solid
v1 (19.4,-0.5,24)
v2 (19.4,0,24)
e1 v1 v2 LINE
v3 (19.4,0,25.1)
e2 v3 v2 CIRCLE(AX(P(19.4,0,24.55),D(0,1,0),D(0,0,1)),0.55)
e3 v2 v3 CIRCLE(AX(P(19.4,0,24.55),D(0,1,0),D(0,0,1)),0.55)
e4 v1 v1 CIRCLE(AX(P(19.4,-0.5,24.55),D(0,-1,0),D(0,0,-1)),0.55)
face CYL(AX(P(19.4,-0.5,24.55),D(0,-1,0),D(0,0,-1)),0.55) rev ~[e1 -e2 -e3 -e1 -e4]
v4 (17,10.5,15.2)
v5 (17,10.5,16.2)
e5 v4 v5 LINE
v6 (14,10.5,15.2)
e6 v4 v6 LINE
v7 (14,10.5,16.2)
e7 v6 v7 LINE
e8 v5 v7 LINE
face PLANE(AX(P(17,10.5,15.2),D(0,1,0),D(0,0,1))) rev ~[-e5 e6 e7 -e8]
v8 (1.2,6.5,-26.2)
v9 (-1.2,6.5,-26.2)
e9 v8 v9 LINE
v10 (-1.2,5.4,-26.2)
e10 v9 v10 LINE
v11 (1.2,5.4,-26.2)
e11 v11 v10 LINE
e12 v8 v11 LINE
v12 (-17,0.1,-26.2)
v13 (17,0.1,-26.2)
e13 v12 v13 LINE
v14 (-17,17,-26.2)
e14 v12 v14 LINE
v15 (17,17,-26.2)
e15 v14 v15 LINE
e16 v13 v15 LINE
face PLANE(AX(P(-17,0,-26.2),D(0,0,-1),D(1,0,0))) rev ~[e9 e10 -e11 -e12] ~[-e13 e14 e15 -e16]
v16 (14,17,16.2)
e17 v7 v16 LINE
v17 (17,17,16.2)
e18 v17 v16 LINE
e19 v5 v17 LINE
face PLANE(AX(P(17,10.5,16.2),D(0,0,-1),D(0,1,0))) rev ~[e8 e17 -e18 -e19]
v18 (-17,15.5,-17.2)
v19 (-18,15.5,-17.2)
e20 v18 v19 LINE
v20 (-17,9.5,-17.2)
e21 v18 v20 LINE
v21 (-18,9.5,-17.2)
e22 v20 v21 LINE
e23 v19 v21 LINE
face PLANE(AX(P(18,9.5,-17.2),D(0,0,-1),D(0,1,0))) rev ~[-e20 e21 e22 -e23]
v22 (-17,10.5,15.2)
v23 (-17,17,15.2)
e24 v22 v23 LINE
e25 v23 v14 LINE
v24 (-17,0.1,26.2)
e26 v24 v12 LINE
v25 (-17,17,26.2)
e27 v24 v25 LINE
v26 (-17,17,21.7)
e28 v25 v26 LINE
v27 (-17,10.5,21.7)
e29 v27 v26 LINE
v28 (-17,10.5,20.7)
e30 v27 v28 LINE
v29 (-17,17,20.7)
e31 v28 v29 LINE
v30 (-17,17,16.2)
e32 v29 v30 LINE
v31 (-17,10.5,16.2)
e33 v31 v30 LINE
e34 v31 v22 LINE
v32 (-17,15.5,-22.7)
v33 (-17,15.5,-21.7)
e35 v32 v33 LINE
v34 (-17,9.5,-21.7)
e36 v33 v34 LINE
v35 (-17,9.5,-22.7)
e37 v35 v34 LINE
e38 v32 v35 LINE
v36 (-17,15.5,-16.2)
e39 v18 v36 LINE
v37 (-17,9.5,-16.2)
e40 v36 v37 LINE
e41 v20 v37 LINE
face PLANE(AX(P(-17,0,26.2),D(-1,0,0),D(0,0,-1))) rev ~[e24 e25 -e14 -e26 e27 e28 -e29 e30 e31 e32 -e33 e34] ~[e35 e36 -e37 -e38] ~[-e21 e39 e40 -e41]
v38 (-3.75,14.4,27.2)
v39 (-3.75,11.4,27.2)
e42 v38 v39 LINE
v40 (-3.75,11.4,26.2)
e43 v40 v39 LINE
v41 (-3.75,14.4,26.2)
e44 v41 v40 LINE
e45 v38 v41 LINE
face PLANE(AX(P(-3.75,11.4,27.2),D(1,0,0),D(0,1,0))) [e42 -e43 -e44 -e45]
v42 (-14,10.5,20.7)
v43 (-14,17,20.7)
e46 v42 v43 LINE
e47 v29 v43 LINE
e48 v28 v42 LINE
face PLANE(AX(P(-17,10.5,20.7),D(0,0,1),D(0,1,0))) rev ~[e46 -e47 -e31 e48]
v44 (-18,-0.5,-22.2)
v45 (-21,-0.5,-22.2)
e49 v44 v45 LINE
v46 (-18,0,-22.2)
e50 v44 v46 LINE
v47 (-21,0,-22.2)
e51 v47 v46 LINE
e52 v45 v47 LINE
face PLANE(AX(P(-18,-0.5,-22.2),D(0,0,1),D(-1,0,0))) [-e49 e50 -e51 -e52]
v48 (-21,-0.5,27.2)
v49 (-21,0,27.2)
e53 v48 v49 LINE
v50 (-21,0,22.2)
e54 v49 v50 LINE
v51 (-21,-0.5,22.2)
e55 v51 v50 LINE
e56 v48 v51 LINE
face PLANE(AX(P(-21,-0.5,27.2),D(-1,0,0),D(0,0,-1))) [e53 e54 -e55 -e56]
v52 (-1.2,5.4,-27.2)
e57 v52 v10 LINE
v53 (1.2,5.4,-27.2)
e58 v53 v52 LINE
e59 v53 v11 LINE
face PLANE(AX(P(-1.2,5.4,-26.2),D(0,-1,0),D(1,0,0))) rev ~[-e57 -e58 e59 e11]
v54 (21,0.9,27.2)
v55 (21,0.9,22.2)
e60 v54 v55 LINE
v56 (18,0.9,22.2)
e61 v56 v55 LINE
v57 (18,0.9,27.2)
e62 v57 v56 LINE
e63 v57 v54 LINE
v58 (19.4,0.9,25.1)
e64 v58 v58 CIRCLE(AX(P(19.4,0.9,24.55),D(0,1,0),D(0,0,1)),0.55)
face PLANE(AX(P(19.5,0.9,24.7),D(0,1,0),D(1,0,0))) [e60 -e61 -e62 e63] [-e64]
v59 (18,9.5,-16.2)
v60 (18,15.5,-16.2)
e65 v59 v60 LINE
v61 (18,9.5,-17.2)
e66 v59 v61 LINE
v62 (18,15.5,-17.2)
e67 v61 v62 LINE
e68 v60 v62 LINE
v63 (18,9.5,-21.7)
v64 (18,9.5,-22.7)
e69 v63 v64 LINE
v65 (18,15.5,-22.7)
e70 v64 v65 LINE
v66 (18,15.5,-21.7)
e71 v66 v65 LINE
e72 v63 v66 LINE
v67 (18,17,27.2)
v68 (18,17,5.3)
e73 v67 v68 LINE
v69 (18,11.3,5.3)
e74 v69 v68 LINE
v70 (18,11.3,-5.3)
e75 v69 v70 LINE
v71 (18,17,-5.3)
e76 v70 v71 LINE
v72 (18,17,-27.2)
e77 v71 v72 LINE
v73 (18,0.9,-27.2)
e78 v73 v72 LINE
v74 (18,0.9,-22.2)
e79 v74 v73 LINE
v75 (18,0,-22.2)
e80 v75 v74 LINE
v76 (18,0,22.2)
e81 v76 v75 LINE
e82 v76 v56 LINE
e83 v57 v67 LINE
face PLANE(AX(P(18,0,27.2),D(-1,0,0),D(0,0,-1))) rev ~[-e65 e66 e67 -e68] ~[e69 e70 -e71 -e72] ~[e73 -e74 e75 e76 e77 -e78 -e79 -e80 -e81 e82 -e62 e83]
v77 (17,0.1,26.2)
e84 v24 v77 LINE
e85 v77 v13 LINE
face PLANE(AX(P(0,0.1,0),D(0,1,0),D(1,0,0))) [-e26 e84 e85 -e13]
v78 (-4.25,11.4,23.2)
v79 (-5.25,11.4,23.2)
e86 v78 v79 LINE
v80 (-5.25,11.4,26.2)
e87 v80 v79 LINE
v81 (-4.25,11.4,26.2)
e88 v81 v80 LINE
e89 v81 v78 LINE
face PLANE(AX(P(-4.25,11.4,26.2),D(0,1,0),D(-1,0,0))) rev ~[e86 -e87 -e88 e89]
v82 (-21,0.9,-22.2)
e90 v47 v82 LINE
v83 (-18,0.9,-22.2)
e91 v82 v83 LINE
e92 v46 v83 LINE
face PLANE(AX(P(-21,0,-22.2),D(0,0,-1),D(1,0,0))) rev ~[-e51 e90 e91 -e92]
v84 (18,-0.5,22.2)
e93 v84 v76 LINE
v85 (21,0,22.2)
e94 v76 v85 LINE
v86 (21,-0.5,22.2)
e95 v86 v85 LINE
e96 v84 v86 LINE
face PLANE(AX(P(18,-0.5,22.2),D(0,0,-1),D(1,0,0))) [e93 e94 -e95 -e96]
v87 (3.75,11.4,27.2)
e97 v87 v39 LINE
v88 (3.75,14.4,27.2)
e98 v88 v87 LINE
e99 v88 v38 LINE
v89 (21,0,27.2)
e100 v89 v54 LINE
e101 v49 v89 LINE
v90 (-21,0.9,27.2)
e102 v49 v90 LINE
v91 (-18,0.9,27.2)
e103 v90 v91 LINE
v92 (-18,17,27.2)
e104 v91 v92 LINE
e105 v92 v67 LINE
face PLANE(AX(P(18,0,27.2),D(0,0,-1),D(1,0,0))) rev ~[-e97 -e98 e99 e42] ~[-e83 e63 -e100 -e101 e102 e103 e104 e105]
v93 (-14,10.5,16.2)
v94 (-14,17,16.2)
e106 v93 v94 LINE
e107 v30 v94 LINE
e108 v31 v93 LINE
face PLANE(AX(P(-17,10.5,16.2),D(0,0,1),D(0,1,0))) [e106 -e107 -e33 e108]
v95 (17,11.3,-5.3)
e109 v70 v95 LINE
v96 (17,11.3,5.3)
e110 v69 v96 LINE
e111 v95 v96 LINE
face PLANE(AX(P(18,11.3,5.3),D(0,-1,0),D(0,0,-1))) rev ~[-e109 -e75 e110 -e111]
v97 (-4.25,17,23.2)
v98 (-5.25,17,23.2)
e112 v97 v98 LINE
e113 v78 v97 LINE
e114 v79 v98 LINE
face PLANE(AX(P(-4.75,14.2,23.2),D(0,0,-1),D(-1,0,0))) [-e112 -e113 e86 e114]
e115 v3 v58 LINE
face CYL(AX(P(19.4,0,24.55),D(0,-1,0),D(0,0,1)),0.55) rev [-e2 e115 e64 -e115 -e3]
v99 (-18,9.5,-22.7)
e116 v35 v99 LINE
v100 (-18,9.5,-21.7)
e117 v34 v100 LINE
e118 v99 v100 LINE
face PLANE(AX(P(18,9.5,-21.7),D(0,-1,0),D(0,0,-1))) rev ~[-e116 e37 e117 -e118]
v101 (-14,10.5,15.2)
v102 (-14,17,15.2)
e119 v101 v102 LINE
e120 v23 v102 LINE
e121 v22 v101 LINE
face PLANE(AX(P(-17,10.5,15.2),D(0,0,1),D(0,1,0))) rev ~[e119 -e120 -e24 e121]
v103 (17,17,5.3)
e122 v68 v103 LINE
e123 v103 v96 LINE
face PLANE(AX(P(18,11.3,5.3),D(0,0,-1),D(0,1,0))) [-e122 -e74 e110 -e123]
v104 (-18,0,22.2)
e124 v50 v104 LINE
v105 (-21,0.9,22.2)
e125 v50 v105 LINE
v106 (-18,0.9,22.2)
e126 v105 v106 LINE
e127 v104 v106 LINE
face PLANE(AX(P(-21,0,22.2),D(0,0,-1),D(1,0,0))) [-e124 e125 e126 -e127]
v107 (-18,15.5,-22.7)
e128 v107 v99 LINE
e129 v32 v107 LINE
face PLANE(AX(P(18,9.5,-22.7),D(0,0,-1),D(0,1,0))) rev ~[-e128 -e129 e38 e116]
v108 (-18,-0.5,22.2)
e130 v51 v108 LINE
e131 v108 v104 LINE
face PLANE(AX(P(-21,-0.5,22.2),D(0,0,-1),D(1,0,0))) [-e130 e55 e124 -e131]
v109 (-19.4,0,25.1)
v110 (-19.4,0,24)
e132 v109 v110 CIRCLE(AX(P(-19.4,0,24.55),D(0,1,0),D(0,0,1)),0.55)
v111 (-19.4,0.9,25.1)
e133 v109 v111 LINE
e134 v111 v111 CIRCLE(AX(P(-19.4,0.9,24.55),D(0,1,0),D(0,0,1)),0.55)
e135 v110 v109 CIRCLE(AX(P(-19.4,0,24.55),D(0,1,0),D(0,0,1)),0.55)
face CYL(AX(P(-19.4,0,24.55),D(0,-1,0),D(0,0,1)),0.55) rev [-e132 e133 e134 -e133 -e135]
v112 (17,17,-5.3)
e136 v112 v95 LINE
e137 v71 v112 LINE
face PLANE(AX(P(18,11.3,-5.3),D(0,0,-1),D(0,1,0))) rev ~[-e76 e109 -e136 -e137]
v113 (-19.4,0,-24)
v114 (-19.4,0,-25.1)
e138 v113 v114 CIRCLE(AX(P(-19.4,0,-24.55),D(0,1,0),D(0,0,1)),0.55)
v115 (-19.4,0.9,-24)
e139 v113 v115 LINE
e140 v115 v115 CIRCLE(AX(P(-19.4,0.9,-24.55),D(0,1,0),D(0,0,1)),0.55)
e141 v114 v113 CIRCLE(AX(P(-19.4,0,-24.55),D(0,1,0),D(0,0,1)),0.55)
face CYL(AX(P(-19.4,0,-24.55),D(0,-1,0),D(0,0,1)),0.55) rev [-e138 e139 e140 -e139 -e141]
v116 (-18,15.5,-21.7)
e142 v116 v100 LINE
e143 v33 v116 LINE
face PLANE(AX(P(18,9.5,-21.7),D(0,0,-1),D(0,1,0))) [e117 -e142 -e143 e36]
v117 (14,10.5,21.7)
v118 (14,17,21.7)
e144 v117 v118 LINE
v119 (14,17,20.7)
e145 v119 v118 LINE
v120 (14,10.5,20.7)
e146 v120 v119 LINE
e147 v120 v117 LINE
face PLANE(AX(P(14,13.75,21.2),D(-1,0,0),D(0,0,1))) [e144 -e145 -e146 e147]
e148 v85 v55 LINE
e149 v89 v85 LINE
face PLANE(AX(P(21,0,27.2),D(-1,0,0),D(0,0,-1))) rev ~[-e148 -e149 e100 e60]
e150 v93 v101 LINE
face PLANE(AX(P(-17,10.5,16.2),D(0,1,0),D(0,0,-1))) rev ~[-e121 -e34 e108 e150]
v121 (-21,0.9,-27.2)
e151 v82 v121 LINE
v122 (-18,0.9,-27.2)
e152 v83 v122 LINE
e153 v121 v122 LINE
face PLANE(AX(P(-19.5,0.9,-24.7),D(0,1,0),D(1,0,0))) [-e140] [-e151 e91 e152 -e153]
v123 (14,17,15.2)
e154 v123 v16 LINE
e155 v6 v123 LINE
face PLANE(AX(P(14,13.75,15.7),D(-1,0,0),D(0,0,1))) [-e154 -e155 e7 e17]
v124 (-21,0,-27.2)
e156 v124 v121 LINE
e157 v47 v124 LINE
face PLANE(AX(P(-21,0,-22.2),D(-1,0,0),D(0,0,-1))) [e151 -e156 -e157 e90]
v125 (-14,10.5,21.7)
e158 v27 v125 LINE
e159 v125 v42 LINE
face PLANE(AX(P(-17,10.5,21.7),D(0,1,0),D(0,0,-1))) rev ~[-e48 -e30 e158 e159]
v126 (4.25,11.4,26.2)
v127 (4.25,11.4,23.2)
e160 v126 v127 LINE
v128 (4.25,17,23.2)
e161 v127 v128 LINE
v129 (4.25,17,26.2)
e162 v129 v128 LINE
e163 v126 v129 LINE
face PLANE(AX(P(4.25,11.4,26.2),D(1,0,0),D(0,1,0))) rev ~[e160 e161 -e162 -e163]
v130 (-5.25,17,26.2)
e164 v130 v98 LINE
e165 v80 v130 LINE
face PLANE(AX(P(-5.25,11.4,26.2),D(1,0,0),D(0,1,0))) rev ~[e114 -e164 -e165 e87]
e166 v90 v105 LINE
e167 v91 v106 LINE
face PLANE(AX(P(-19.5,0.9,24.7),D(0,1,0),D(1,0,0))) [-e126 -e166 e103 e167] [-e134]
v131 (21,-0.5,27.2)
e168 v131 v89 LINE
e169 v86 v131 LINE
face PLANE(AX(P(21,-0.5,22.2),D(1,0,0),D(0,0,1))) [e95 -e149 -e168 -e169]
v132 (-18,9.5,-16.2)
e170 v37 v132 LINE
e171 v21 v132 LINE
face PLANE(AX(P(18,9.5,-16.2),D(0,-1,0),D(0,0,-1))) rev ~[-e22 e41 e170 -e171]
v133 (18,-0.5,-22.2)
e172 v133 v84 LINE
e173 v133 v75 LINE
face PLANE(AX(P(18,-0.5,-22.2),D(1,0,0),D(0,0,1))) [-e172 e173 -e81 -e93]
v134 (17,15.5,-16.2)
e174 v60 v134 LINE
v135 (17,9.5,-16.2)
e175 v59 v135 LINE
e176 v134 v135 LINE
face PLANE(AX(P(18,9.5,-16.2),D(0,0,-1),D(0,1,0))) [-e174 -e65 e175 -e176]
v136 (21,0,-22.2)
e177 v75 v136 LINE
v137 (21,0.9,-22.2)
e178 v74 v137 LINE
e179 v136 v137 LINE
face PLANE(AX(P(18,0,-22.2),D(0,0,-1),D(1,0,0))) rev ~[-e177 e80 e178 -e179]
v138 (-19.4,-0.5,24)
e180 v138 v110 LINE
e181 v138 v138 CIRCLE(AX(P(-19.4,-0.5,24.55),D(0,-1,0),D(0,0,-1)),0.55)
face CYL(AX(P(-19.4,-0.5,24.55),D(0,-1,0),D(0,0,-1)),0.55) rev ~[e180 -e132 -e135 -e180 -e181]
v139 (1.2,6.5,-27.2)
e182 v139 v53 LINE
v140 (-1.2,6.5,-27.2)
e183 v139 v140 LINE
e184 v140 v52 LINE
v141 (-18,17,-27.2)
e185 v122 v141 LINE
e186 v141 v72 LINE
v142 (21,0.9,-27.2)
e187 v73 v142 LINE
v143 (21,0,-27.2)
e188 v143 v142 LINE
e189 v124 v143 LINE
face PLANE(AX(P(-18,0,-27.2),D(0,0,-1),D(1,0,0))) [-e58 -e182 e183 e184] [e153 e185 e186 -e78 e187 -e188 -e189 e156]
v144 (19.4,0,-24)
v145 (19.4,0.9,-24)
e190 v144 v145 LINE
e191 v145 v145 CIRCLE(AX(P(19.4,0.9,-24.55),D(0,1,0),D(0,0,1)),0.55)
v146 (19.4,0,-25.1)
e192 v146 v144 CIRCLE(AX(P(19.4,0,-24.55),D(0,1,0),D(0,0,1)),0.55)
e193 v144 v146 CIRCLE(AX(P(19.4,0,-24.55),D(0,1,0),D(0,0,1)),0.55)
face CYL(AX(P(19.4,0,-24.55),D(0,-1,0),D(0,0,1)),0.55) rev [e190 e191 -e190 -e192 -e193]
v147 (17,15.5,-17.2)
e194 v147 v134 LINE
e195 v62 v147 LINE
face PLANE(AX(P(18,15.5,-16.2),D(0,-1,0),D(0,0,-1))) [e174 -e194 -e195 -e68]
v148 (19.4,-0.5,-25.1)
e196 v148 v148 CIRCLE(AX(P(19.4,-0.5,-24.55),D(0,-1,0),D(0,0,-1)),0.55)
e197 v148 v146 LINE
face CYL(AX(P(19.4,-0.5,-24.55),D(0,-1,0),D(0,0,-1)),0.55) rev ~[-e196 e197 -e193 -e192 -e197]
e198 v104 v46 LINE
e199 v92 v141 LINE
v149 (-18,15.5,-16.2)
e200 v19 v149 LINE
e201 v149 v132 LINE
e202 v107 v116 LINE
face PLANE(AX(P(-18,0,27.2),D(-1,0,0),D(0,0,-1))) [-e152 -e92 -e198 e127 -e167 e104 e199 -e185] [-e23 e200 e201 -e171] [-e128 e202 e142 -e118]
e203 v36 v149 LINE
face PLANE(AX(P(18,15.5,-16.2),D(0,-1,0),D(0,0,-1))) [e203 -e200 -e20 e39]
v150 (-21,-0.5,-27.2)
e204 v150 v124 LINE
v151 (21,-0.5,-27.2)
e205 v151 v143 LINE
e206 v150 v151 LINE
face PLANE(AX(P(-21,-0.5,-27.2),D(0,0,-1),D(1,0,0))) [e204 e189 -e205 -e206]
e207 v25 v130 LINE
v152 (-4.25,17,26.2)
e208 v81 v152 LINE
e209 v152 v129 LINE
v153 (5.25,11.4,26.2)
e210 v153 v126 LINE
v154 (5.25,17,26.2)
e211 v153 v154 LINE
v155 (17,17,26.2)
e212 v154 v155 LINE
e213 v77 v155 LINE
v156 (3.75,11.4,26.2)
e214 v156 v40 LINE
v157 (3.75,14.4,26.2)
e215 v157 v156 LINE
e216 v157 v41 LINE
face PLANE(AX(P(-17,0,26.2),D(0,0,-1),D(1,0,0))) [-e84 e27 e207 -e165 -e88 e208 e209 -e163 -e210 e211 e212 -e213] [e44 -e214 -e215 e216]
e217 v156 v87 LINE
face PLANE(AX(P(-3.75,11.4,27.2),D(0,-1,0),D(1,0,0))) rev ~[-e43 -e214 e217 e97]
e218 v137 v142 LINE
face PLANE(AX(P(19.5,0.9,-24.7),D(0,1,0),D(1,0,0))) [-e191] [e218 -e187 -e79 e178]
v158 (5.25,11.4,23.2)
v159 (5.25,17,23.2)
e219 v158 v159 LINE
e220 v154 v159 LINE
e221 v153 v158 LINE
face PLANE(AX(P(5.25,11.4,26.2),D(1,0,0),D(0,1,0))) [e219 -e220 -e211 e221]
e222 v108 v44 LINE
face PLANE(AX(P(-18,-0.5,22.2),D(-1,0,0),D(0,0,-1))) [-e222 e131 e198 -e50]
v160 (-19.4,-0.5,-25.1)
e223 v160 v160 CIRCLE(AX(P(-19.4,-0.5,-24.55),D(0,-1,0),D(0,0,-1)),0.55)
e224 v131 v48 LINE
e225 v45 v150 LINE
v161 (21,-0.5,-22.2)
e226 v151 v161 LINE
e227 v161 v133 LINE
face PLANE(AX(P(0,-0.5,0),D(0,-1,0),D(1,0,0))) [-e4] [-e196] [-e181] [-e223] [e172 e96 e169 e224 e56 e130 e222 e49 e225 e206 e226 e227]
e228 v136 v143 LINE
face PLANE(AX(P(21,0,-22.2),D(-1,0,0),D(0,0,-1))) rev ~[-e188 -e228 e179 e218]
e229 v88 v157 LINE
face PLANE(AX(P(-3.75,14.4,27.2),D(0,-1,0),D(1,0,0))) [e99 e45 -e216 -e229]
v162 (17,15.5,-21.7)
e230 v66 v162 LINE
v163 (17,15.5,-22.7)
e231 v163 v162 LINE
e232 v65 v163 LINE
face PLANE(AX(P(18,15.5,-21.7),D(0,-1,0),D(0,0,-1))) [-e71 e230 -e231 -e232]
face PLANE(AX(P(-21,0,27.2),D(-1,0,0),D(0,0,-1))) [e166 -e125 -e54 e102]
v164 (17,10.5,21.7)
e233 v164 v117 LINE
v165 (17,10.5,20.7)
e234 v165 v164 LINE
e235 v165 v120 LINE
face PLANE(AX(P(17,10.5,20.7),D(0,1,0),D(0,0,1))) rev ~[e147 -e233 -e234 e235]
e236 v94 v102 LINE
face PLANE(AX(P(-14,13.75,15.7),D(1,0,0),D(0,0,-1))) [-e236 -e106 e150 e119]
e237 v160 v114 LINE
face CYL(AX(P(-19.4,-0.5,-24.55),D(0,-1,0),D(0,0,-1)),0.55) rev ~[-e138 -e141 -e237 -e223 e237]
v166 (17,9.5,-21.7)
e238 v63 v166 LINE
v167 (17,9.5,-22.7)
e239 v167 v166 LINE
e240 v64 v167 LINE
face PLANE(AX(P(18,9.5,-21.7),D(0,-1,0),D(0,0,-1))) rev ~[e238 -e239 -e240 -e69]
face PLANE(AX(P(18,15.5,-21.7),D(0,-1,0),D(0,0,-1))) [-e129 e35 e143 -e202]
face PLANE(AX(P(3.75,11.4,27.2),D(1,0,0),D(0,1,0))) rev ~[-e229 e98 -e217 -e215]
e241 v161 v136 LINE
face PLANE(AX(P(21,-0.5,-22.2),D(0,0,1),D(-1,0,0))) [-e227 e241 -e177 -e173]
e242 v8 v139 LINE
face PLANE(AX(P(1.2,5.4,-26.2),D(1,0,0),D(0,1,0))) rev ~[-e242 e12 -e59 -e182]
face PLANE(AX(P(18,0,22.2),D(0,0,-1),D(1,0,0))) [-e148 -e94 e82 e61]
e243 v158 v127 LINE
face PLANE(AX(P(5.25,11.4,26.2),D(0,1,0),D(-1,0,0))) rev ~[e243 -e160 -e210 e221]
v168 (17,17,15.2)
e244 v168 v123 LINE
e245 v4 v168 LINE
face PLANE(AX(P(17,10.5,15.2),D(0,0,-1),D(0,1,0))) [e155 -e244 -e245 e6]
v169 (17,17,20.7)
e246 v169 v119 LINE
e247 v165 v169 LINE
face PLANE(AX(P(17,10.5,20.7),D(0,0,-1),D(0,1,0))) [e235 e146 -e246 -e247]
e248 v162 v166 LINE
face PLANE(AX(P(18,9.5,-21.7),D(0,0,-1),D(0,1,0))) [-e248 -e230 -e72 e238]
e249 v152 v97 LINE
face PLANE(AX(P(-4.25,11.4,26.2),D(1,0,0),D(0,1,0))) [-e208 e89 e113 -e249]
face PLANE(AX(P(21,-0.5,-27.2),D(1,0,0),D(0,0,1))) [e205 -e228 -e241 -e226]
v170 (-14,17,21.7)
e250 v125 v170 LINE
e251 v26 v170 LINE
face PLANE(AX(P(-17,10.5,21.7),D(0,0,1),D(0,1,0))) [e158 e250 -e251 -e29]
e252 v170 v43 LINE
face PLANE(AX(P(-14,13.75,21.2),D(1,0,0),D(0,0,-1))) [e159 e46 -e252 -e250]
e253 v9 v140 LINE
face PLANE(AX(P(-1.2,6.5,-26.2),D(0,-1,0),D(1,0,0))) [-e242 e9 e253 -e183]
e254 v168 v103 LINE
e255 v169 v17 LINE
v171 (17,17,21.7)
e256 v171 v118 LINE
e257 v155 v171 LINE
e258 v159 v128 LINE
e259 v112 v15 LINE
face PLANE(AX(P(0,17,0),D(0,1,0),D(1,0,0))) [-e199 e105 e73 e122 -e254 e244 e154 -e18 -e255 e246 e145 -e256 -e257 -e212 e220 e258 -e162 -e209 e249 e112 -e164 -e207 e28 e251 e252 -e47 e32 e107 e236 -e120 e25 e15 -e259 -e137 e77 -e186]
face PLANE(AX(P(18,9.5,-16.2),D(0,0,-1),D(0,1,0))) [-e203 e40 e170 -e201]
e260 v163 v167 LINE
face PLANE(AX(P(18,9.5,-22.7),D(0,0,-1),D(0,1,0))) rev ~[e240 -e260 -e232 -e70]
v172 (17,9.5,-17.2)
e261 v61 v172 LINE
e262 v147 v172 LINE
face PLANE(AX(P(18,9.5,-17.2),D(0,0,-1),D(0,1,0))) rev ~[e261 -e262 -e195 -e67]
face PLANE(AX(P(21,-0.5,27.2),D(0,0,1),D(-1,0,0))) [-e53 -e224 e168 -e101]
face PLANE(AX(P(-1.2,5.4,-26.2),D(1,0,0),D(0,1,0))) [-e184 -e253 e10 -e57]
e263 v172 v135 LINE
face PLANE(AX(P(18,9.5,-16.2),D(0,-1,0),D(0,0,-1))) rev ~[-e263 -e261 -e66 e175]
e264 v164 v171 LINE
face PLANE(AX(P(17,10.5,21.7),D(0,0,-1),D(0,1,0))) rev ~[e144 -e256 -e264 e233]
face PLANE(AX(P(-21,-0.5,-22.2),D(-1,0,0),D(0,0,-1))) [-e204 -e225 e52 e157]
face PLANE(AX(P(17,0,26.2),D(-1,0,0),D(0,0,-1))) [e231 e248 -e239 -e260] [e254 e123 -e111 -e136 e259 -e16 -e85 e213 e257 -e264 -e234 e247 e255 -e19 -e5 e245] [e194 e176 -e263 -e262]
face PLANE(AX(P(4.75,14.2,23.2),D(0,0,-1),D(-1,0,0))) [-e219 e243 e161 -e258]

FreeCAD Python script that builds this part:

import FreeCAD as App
import Part
import Sketcher

doc = App.newDocument("Part")
body = doc.addObject("PartDesign::Body", "Body")

# Sketch on XZ plane
sketch1 = doc.addObject("Sketcher::SketchObject", "Sketch")
body.addObject(sketch1)
sketch1.AttachmentSupport = (doc.XZ_Plane, [""])
sketch1.MapMode = "FlatFace"
sketch1.addGeometry(Part.LineSegment(App.Vector(-18, -27, 0), App.Vector(-18, 27, 0)), False)
sketch1.addGeometry(Part.LineSegment(App.Vector(-18, 27, 0), App.Vector(18, 27, 0)), False)
sketch1.addGeometry(Part.LineSegment(App.Vector(18, 27, 0), App.Vector(18, -27, 0)), False)
sketch1.addGeometry(Part.LineSegment(App.Vector(18, -27, 0), App.Vector(-18, -27, 0)), False)
sketch1.addGeometry(Part.LineSegment(App.Vector(17, 26, 0), App.Vector(-17, 26, 0)), False)
sketch1.addGeometry(Part.LineSegment(App.Vector(-17, 26, 0), App.Vector(-17, -26, 0)), False)
sketch1.addGeometry(Part.LineSegment(App.Vector(-17, -26, 0), App.Vector(17, -26, 0)), False)
sketch1.addGeometry(Part.LineSegment(App.Vector(17, -26, 0), App.Vector(17, 26, 0)), False)
sketch1.addConstraint(Sketcher.Constraint("Coincident", 0, 2, 1, 1))
sketch1.addConstraint(Sketcher.Constraint("Coincident", 1, 2, 2, 1))
sketch1.addConstraint(Sketcher.Constraint("Coincident", 2, 2, 3, 1))
sketch1.addConstraint(Sketcher.Constraint("Coincident", 3, 2, 0, 1))
sketch1.addConstraint(Sketcher.Constraint("Coincident", 4, 2, 5, 1))
sketch1.addConstraint(Sketcher.Constraint("Coincident", 5, 2, 6, 1))
sketch1.addConstraint(Sketcher.Constraint("Coincident", 6, 2, 7, 1))
sketch1.addConstraint(Sketcher.Constraint("Coincident", 7, 2, 4, 1))
sketch1.addConstraint(Sketcher.Constraint("Vertical", 0))
sketch1.addConstraint(Sketcher.Constraint("Horizontal", 1))
sketch1.addConstraint(Sketcher.Constraint("Vertical", 2))
sketch1.addConstraint(Sketcher.Constraint("Horizontal", 3))
sketch1.addConstraint(Sketcher.Constraint("Horizontal", 4))
sketch1.addConstraint(Sketcher.Constraint("Vertical", 5))
sketch1.addConstraint(Sketcher.Constraint("Horizontal", 6))
sketch1.addConstraint(Sketcher.Constraint("Vertical", 7))
sketch1.addConstraint(Sketcher.Constraint("Symmetric", 0, 2, 2, 2, -1, 1))
sketch1.addConstraint(Sketcher.Constraint("Symmetric", 4, 2, 6, 2, -1, 1))
sketch1.addConstraint(Sketcher.Constraint("DistanceX", 1, 1, 1, 2, 36.0))
sketch1.addConstraint(Sketcher.Constraint("DistanceX", 4, 2, 4, 1, 34.0))
sketch1.addConstraint(Sketcher.Constraint("DistanceY", 0, 1, 0, 2, 54.4))
sketch1.addConstraint(Sketcher.Constraint("DistanceY", 5, 2, 5, 1, 52.4))
pad1 = doc.addObject("PartDesign::Pad", "Pad")
body.addObject(pad1)
pad1.Profile = sketch1
pad1.Length = 17
pad1.Reversed = True

# Sketch on XZ plane
sketch2 = doc.addObject("Sketcher::SketchObject", "Sketch001")
body.addObject(sketch2)
sketch2.AttachmentSupport = (doc.XZ_Plane, [""])
sketch2.MapMode = "FlatFace"
sketch2.addGeometry(Part.LineSegment(App.Vector(-17, -26, 0), App.Vector(-17, 26, 0)), False)
sketch2.addGeometry(Part.LineSegment(App.Vector(-17, 26, 0), App.Vector(17, 26, 0)), False)
sketch2.addGeometry(Part.LineSegment(App.Vector(17, 26, 0), App.Vector(17, -26, 0)), False)
sketch2.addGeometry(Part.LineSegment(App.Vector(17, -26, 0), App.Vector(-17, -26, 0)), False)
sketch2.addConstraint(Sketcher.Constraint("Coincident", 0, 2, 1, 1))
sketch2.addConstraint(Sketcher.Constraint("Coincident", 1, 2, 2, 1))
sketch2.addConstraint(Sketcher.Constraint("Coincident", 2, 2, 3, 1))
sketch2.addConstraint(Sketcher.Constraint("Coincident", 3, 2, 0, 1))
sketch2.addConstraint(Sketcher.Constraint("Vertical", 0))
sketch2.addConstraint(Sketcher.Constraint("Horizontal", 1))
sketch2.addConstraint(Sketcher.Constraint("Vertical", 2))
sketch2.addConstraint(Sketcher.Constraint("Horizontal", 3))
sketch2.addConstraint(Sketcher.Constraint("Symmetric", 0, 2, 2, 2, -1, 1))
sketch2.addConstraint(Sketcher.Constraint("DistanceX", 1, 1, 1, 2, 34.0))
sketch2.addConstraint(Sketcher.Constraint("DistanceY", 0, 1, 0, 2, 52.4))
pad2 = doc.addObject("PartDesign::Pad", "Pad001")
body.addObject(pad2)
pad2.Profile = sketch2
pad2.Length = 0.1
pad2.Reversed = True

# Sketch on XY plane
sketch3 = doc.addObject("Sketcher::SketchObject", "Sketch002")
body.addObject(sketch3)
sketch3.AttachmentSupport = (doc.XY_Plane, [""])
sketch3.MapMode = "FlatFace"
sketch3.AttachmentOffset = App.Placement(App.Vector(0, 0, 27.2), App.Rotation())
sketch3.addGeometry(Part.LineSegment(App.Vector(-3.8, 14.4, 0), App.Vector(-3.8, 11.4, 0)), False)
sketch3.addGeometry(Part.LineSegment(App.Vector(-3.8, 11.4, 0), App.Vector(3.8, 11.4, 0)), False)
sketch3.addGeometry(Part.LineSegment(App.Vector(3.8, 11.4, 0), App.Vector(3.8, 14.4, 0)), False)
sketch3.addGeometry(Part.LineSegment(App.Vector(3.8, 14.4, 0), App.Vector(-3.8, 14.4, 0)), False)
sketch3.addConstraint(Sketcher.Constraint("Coincident", 0, 2, 1, 1))
sketch3.addConstraint(Sketcher.Constraint("Coincident", 1, 2, 2, 1))
sketch3.addConstraint(Sketcher.Constraint("Coincident", 2, 2, 3, 1))
sketch3.addConstraint(Sketcher.Constraint("Coincident", 3, 2, 0, 1))
sketch3.addConstraint(Sketcher.Constraint("Vertical", 0))
sketch3.addConstraint(Sketcher.Constraint("Horizontal", 1))
sketch3.addConstraint(Sketcher.Constraint("Vertical", 2))
sketch3.addConstraint(Sketcher.Constraint("Horizontal", 3))
sketch3.addConstraint(Sketcher.Constraint("DistanceY", 0, 2, 0, 1, 3.0))
sketch3.addConstraint(Sketcher.Constraint("DistanceX", 1, 1, 1, 2, 7.5))
sketch3.addConstraint(Sketcher.Constraint("DistanceY", -1, 1, 0, 2, 11.4))
sketch3.addConstraint(Sketcher.Constraint("DistanceX", 0, 2, -1, 1, 3.75))
pocket1 = doc.addObject("PartDesign::Pocket", "Pocket")
body.addObject(pocket1)
pocket1.Profile = sketch3
pocket1.Length = 11
pocket1.Midplane = True

# Sketch on XY plane
sketch4 = doc.addObject("Sketcher::SketchObject", "Sketch003")
body.addObject(sketch4)
sketch4.AttachmentSupport = (doc.XY_Plane, [""])
sketch4.MapMode = "FlatFace"
sketch4.AttachmentOffset = App.Placement(App.Vector(0, 0, -26.2), App.Rotation())
sketch4.addGeometry(Part.LineSegment(App.Vector(-1.2, 6.5, 0), App.Vector(-1.2, 5.4, 0)), False)
sketch4.addGeometry(Part.LineSegment(App.Vector(-1.2, 5.4, 0), App.Vector(1.2, 5.4, 0)), False)
sketch4.addGeometry(Part.LineSegment(App.Vector(1.2, 5.4, 0), App.Vector(1.2, 6.5, 0)), False)
sketch4.addGeometry(Part.LineSegment(App.Vector(1.2, 6.5, 0), App.Vector(-1.2, 6.5, 0)), False)
sketch4.addConstraint(Sketcher.Constraint("Coincident", 0, 2, 1, 1))
sketch4.addConstraint(Sketcher.Constraint("Coincident", 1, 2, 2, 1))
sketch4.addConstraint(Sketcher.Constraint("Coincident", 2, 2, 3, 1))
sketch4.addConstraint(Sketcher.Constraint("Coincident", 3, 2, 0, 1))
sketch4.addConstraint(Sketcher.Constraint("Vertical", 0))
sketch4.addConstraint(Sketcher.Constraint("Horizontal", 1))
sketch4.addConstraint(Sketcher.Constraint("Vertical", 2))
sketch4.addConstraint(Sketcher.Constraint("Horizontal", 3))
sketch4.addConstraint(Sketcher.Constraint("DistanceX", 1, 1, 1, 2, 2.4))
sketch4.addConstraint(Sketcher.Constraint("DistanceY", 0, 2, 0, 1, 1.1))
sketch4.addConstraint(Sketcher.Constraint("DistanceX", 0, 2, -1, 1, 1.2))
sketch4.addConstraint(Sketcher.Constraint("DistanceY", -1, 1, 0, 2, 5.4))
pocket2 = doc.addObject("PartDesign::Pocket", "Pocket001")
body.addObject(pocket2)
pocket2.Profile = sketch4
pocket2.Length = 11
pocket2.Midplane = True

# Sketch on XZ plane
sketch5 = doc.addObject("Sketcher::SketchObject", "Sketch004")
body.addObject(sketch5)
sketch5.AttachmentSupport = (doc.XZ_Plane, [""])
sketch5.MapMode = "FlatFace"
sketch5.addGeometry(Part.LineSegment(App.Vector(18, 22.2, 0), App.Vector(18, 27.2, 0)), False)
sketch5.addGeometry(Part.LineSegment(App.Vector(18, 27.2, 0), App.Vector(21, 27.2, 0)), False)
sketch5.addGeometry(Part.LineSegment(App.Vector(21, 27.2, 0), App.Vector(21, 22.2, 0)), False)
sketch5.addGeometry(Part.LineSegment(App.Vector(21, 22.2, 0), App.Vector(18, 22.2, 0)), False)
sketch5.addGeometry(Part.Circle(App.Vector(19.4, 24.6, 0), App.Vector(0, 0, 1), 0.6), False)
sketch5.addGeometry(Part.LineSegment(App.Vector(-21, 22.2, 0), App.Vector(-21, 27.2, 0)), False)
sketch5.addGeometry(Part.LineSegment(App.Vector(-21, 27.2, 0), App.Vector(-18, 27.2, 0)), False)
sketch5.addGeometry(Part.LineSegment(App.Vector(-18, 27.2, 0), App.Vector(-18, 22.2, 0)), False)
sketch5.addGeometry(Part.LineSegment(App.Vector(-18, 22.2, 0), App.Vector(-21, 22.2, 0)), False)
sketch5.addGeometry(Part.Circle(App.Vector(-19.4, 24.6, 0), App.Vector(0, 0, 1), 0.6), False)
sketch5.addGeometry(Part.LineSegment(App.Vector(-21, -27.2, 0), App.Vector(-21, -22.2, 0)), False)
sketch5.addGeometry(Part.LineSegment(App.Vector(-21, -22.2, 0), App.Vector(-18, -22.2, 0)), False)
sketch5.addGeometry(Part.LineSegment(App.Vector(-18, -22.2, 0), App.Vector(-18, -27.2, 0)), False)
sketch5.addGeometry(Part.LineSegment(App.Vector(-18, -27.2, 0), App.Vector(-21, -27.2, 0)), False)
sketch5.addGeometry(Part.Circle(App.Vector(-19.4, -24.6, 0), App.Vector(0, 0, 1), 0.6), False)
sketch5.addGeometry(Part.LineSegment(App.Vector(18, -27.2, 0), App.Vector(18, -22.2, 0)), False)
sketch5.addGeometry(Part.LineSegment(App.Vector(18, -22.2, 0), App.Vector(21, -22.2, 0)), False)
sketch5.addGeometry(Part.LineSegment(App.Vector(21, -22.2, 0), App.Vector(21, -27.2, 0)), False)
sketch5.addGeometry(Part.LineSegment(App.Vector(21, -27.2, 0), App.Vector(18, -27.2, 0)), False)
sketch5.addGeometry(Part.Circle(App.Vector(19.4, -24.6, 0), App.Vector(0, 0, 1), 0.6), False)
sketch5.addConstraint(Sketcher.Constraint("Coincident", 0, 2, 1, 1))
sketch5.addConstraint(Sketcher.Constraint("Coincident", 1, 2, 2, 1))
sketch5.addConstraint(Sketcher.Constraint("Coincident", 2, 2, 3, 1))
sketch5.addConstraint(Sketcher.Constraint("Coincident", 3, 2, 0, 1))
sketch5.addConstraint(Sketcher.Constraint("Coincident", 5, 2, 6, 1))
sketch5.addConstraint(Sketcher.Constraint("Coincident", 6, 2, 7, 1))
sketch5.addConstraint(Sketcher.Constraint("Coincident", 7, 2, 8, 1))
sketch5.addConstraint(Sketcher.Constraint("Coincident", 8, 2, 5, 1))
sketch5.addConstraint(Sketcher.Constraint("Coincident", 10, 2, 11, 1))
sketch5.addConstraint(Sketcher.Constraint("Coincident", 11, 2, 12, 1))
sketch5.addConstraint(Sketcher.Constraint("Coincident", 12, 2, 13, 1))
sketch5.addConstraint(Sketcher.Constraint("Coincident", 13, 2, 10, 1))
sketch5.addConstraint(Sketcher.Constraint("Coincident", 15, 2, 16, 1))
sketch5.addConstraint(Sketcher.Constraint("Coincident", 16, 2, 17, 1))
sketch5.addConstraint(Sketcher.Constraint("Coincident", 17, 2, 18, 1))
sketch5.addConstraint(Sketcher.Constraint("Coincident", 18, 2, 15, 1))
sketch5.addConstraint(Sketcher.Constraint("Vertical", 0))
sketch5.addConstraint(Sketcher.Constraint("Horizontal", 1))
sketch5.addConstraint(Sketcher.Constraint("Vertical", 2))
sketch5.addConstraint(Sketcher.Constraint("Horizontal", 3))
sketch5.addConstraint(Sketcher.Constraint("Vertical", 5))
sketch5.addConstraint(Sketcher.Constraint("Horizontal", 6))
sketch5.addConstraint(Sketcher.Constraint("Vertical", 7))
sketch5.addConstraint(Sketcher.Constraint("Horizontal", 8))
sketch5.addConstraint(Sketcher.Constraint("Vertical", 10))
sketch5.addConstraint(Sketcher.Constraint("Horizontal", 11))
sketch5.addConstraint(Sketcher.Constraint("Vertical", 12))
sketch5.addConstraint(Sketcher.Constraint("Horizontal", 13))
sketch5.addConstraint(Sketcher.Constraint("Vertical", 15))
sketch5.addConstraint(Sketcher.Constraint("Horizontal", 16))
sketch5.addConstraint(Sketcher.Constraint("Vertical", 17))
sketch5.addConstraint(Sketcher.Constraint("Horizontal", 18))
sketch5.addConstraint(Sketcher.Constraint("Equal", 4, 9))
sketch5.addConstraint(Sketcher.Constraint("Equal", 9, 14))
sketch5.addConstraint(Sketcher.Constraint("Equal", 14, 19))
sketch5.addConstraint(Sketcher.Constraint("Symmetric", 4, 3, 14, 3, -1, 1))
sketch5.addConstraint(Sketcher.Constraint("Symmetric", 9, 3, 19, 3, -1, 1))
sketch5.addConstraint(Sketcher.Constraint("Symmetric", 2, 2, 10, 2, -1, 1))
sketch5.addConstraint(Sketcher.Constraint("Symmetric", 0, 2, 12, 2, -1, 1))
sketch5.addConstraint(Sketcher.Constraint("Symmetric", 7, 2, 15, 2, -1, 1))
sketch5.addConstraint(Sketcher.Constraint("Symmetric", 5, 2, 17, 2, -1, 1))
sketch5.addConstraint(Sketcher.Constraint("Symmetric", 4, 3, 9, 3, -2))
sketch5.addConstraint(Sketcher.Constraint("Symmetric", 1, 2, 5, 2, -2))
sketch5.addConstraint(Sketcher.Constraint("Symmetric", 3, 2, 7, 2, -2))
sketch5.addConstraint(Sketcher.Constraint("Diameter", 4, 1.1))
sketch5.addConstraint(Sketcher.Constraint("DistanceX", 1, 1, 1, 2, 3.0))
sketch5.addConstraint(Sketcher.Constraint("DistanceY", 0, 1, 0, 2, 5.0))
sketch5.addConstraint(Sketcher.Constraint("DistanceX", -1, 1, 0, 2, 18.0))
sketch5.addConstraint(Sketcher.Constraint("DistanceX", -1, 1, 4, 3, 19.4))
sketch5.addConstraint(Sketcher.Constraint("DistanceY", -1, 1, 0, 2, 27.2))
sketch5.addConstraint(Sketcher.Constraint("DistanceY", 14, 3, 9, 3, 49.1))
pad3 = doc.addObject("PartDesign::Pad", "Pad002")
body.addObject(pad3)
pad3.Profile = sketch5
pad3.Length = 0.9
pad3.Reversed = True

# Sketch on YZ plane
sketch6 = doc.addObject("Sketcher::SketchObject", "Sketch005")
body.addObject(sketch6)
sketch6.AttachmentSupport = (doc.YZ_Plane, [""])
sketch6.MapMode = "FlatFace"
sketch6.AttachmentOffset = App.Placement(App.Vector(0, 0, 18), App.Rotation())
sketch6.addGeometry(Part.LineSegment(App.Vector(17, 5, 0), App.Vector(11, 5, 0)), False)
sketch6.addGeometry(Part.LineSegment(App.Vector(11, 5, 0), App.Vector(11, -5, 0)), False)
sketch6.addGeometry(Part.LineSegment(App.Vector(11, -5, 0), App.Vector(17, -5, 0)), False)
sketch6.addGeometry(Part.LineSegment(App.Vector(17, -5, 0), App.Vector(17, 5, 0)), False)
sketch6.addConstraint(Sketcher.Constraint("Coincident", 0, 2, 1, 1))
sketch6.addConstraint(Sketcher.Constraint("Coincident", 1, 2, 2, 1))
sketch6.addConstraint(Sketcher.Constraint("Coincident", 2, 2, 3, 1))
sketch6.addConstraint(Sketcher.Constraint("Coincident", 3, 2, 0, 1))
sketch6.addConstraint(Sketcher.Constraint("Horizontal", 0))
sketch6.addConstraint(Sketcher.Constraint("Vertical", 1))
sketch6.addConstraint(Sketcher.Constraint("Horizontal", 2))
sketch6.addConstraint(Sketcher.Constraint("Vertical", 3))
sketch6.addConstraint(Sketcher.Constraint("DistanceX", 0, 2, 0, 1, 5.7))
sketch6.addConstraint(Sketcher.Constraint("DistanceY", 1, 2, 1, 1, 10.6))
sketch6.addConstraint(Sketcher.Constraint("DistanceX", -1, 1, 2, 2, 17.0))
sketch6.addConstraint(Sketcher.Constraint("DistanceY", -1, 1, 0, 2, 5.3))
pocket3 = doc.addObject("PartDesign::Pocket", "Pocket002")
body.addObject(pocket3)
pocket3.Profile = sketch6
pocket3.Length = 3

# Sketch on YZ plane
sketch7 = doc.addObject("Sketcher::SketchObject", "Sketch006")
body.addObject(sketch7)
sketch7.AttachmentSupport = (doc.YZ_Plane, [""])
sketch7.MapMode = "FlatFace"
sketch7.AttachmentOffset = App.Placement(App.Vector(0, 0, 17), App.Rotation())
sketch7.addGeometry(Part.LineSegment(App.Vector(17, 15.2, 0), App.Vector(10.5, 15.2, 0)), False)
sketch7.addGeometry(Part.LineSegment(App.Vector(10.5, 15.2, 0), App.Vector(10.5, 16.2, 0)), False)
sketch7.addGeometry(Part.LineSegment(App.Vector(10.5, 16.2, 0), App.Vector(17, 16.2, 0)), False)
sketch7.addGeometry(Part.LineSegment(App.Vector(17, 16.2, 0), App.Vector(17, 15.2, 0)), False)
sketch7.addGeometry(Part.LineSegment(App.Vector(17, 20.7, 0), App.Vector(10.5, 20.7, 0)), False)
sketch7.addGeometry(Part.LineSegment(App.Vector(10.5, 20.7, 0), App.Vector(10.5, 21.7, 0)), False)
sketch7.addGeometry(Part.LineSegment(App.Vector(10.5, 21.7, 0), App.Vector(17, 21.7, 0)), False)
sketch7.addGeometry(Part.LineSegment(App.Vector(17, 21.7, 0), App.Vector(17, 20.7, 0)), False)
sketch7.addConstraint(Sketcher.Constraint("Coincident", 0, 2, 1, 1))
sketch7.addConstraint(Sketcher.Constraint("Coincident", 1, 2, 2, 1))
sketch7.addConstraint(Sketcher.Constraint("Coincident", 2, 2, 3, 1))
sketch7.addConstraint(Sketcher.Constraint("Coincident", 3, 2, 0, 1))
sketch7.addConstraint(Sketcher.Constraint("Coincident", 4, 2, 5, 1))
sketch7.addConstraint(Sketcher.Constraint("Coincident", 5, 2, 6, 1))
sketch7.addConstraint(Sketcher.Constraint("Coincident", 6, 2, 7, 1))
sketch7.addConstraint(Sketcher.Constraint("Coincident", 7, 2, 4, 1))
sketch7.addConstraint(Sketcher.Constraint("Horizontal", 0))
sketch7.addConstraint(Sketcher.Constraint("Vertical", 1))
sketch7.addConstraint(Sketcher.Constraint("Horizontal", 2))
sketch7.addConstraint(Sketcher.Constraint("Vertical", 3))
sketch7.addConstraint(Sketcher.Constraint("Horizontal", 4))
sketch7.addConstraint(Sketcher.Constraint("Vertical", 5))
sketch7.addConstraint(Sketcher.Constraint("Horizontal", 6))
sketch7.addConstraint(Sketcher.Constraint("Vertical", 7))
sketch7.addConstraint(Sketcher.Constraint("Vertical", 1, 2, 4, 2))
sketch7.addConstraint(Sketcher.Constraint("Vertical", 3, 2, 6, 2))
sketch7.addConstraint(Sketcher.Constraint("Equal", 3, 5))
sketch7.addConstraint(Sketcher.Constraint("DistanceY", 1, 1, 1, 2, 1.0))
sketch7.addConstraint(Sketcher.Constraint("DistanceX", 0, 2, 0, 1, 6.5))
sketch7.addConstraint(Sketcher.Constraint("DistanceX", -1, 1, 2, 2, 17.0))
sketch7.addConstraint(Sketcher.Constraint("DistanceY", -1, 1, 0, 2, 15.2))
sketch7.addConstraint(Sketcher.Constraint("DistanceY", -1, 1, 4, 2, 20.7))
pad4 = doc.addObject("PartDesign::Pad", "Pad003")
body.addObject(pad4)
pad4.Profile = sketch7
pad4.Length = 3
pad4.Reversed = True

# Sketch on YZ plane
sketch8 = doc.addObject("Sketcher::SketchObject", "Sketch007")
body.addObject(sketch8)
sketch8.AttachmentSupport = (doc.YZ_Plane, [""])
sketch8.MapMode = "FlatFace"
sketch8.AttachmentOffset = App.Placement(App.Vector(0, 0, -17), App.Rotation())
sketch8.addGeometry(Part.LineSegment(App.Vector(17, 21.7, 0), App.Vector(10.5, 21.7, 0)), False)
sketch8.addGeometry(Part.LineSegment(App.Vector(10.5, 21.7, 0), App.Vector(10.5, 20.7, 0)), False)
sketch8.addGeometry(Part.LineSegment(App.Vector(10.5, 20.7, 0), App.Vector(17, 20.7, 0)), False)
sketch8.addGeometry(Part.LineSegment(App.Vector(17, 20.7, 0), App.Vector(17, 21.7, 0)), False)
sketch8.addGeometry(Part.LineSegment(App.Vector(17, 16.2, 0), App.Vector(10.5, 16.2, 0)), False)
sketch8.addGeometry(Part.LineSegment(App.Vector(10.5, 16.2, 0), App.Vector(10.5, 15.2, 0)), False)
sketch8.addGeometry(Part.LineSegment(App.Vector(10.5, 15.2, 0), App.Vector(17, 15.2, 0)), False)
sketch8.addGeometry(Part.LineSegment(App.Vector(17, 15.2, 0), App.Vector(17, 16.2, 0)), False)
sketch8.addConstraint(Sketcher.Constraint("Coincident", 0, 2, 1, 1))
sketch8.addConstraint(Sketcher.Constraint("Coincident", 1, 2, 2, 1))
sketch8.addConstraint(Sketcher.Constraint("Coincident", 2, 2, 3, 1))
sketch8.addConstraint(Sketcher.Constraint("Coincident", 3, 2, 0, 1))
sketch8.addConstraint(Sketcher.Constraint("Coincident", 4, 2, 5, 1))
sketch8.addConstraint(Sketcher.Constraint("Coincident", 5, 2, 6, 1))
sketch8.addConstraint(Sketcher.Constraint("Coincident", 6, 2, 7, 1))
sketch8.addConstraint(Sketcher.Constraint("Coincident", 7, 2, 4, 1))
sketch8.addConstraint(Sketcher.Constraint("Horizontal", 0))
sketch8.addConstraint(Sketcher.Constraint("Vertical", 1))
sketch8.addConstraint(Sketcher.Constraint("Horizontal", 2))
sketch8.addConstraint(Sketcher.Constraint("Vertical", 3))
sketch8.addConstraint(Sketcher.Constraint("Horizontal", 4))
sketch8.addConstraint(Sketcher.Constraint("Vertical", 5))
sketch8.addConstraint(Sketcher.Constraint("Horizontal", 6))
sketch8.addConstraint(Sketcher.Constraint("Vertical", 7))
sketch8.addConstraint(Sketcher.Constraint("Vertical", 1, 2, 4, 2))
sketch8.addConstraint(Sketcher.Constraint("Vertical", 3, 2, 6, 2))
sketch8.addConstraint(Sketcher.Constraint("Equal", 3, 5))
sketch8.addConstraint(Sketcher.Constraint("DistanceY", 1, 2, 1, 1, 1.0))
sketch8.addConstraint(Sketcher.Constraint("DistanceX", 0, 2, 0, 1, 6.5))
sketch8.addConstraint(Sketcher.Constraint("DistanceX", -1, 1, 2, 2, 17.0))
sketch8.addConstraint(Sketcher.Constraint("DistanceY", -1, 1, 0, 2, 21.7))
sketch8.addConstraint(Sketcher.Constraint("DistanceY", -1, 1, 4, 2, 16.2))
pad5 = doc.addObject("PartDesign::Pad", "Pad004")
body.addObject(pad5)
pad5.Profile = sketch8
pad5.Length = 3

# Sketch on XY plane
sketch9 = doc.addObject("Sketcher::SketchObject", "Sketch008")
body.addObject(sketch9)
sketch9.AttachmentSupport = (doc.XY_Plane, [""])
sketch9.MapMode = "FlatFace"
sketch9.AttachmentOffset = App.Placement(App.Vector(0, 0, 26.2), App.Rotation())
sketch9.addGeometry(Part.LineSegment(App.Vector(-4.2, 17, 0), App.Vector(-4.2, 11.4, 0)), False)
sketch9.addGeometry(Part.LineSegment(App.Vector(-4.2, 11.4, 0), App.Vector(-5.2, 11.4, 0)), False)
sketch9.addGeometry(Part.LineSegment(App.Vector(-5.2, 11.4, 0), App.Vector(-5.2, 17, 0)), False)
sketch9.addGeometry(Part.LineSegment(App.Vector(-5.2, 17, 0), App.Vector(-4.2, 17, 0)), False)
sketch9.addGeometry(Part.LineSegment(App.Vector(5.2, 17, 0), App.Vector(5.2, 11.4, 0)), False)
sketch9.addGeometry(Part.LineSegment(App.Vector(5.2, 11.4, 0), App.Vector(4.2, 11.4, 0)), False)
sketch9.addGeometry(Part.LineSegment(App.Vector(4.2, 11.4, 0), App.Vector(4.2, 17, 0)), False)
sketch9.addGeometry(Part.LineSegment(App.Vector(4.2, 17, 0), App.Vector(5.2, 17, 0)), False)
sketch9.addConstraint(Sketcher.Constraint("Coincident", 0, 2, 1, 1))
sketch9.addConstraint(Sketcher.Constraint("Coincident", 1, 2, 2, 1))
sketch9.addConstraint(Sketcher.Constraint("Coincident", 2, 2, 3, 1))
sketch9.addConstraint(Sketcher.Constraint("Coincident", 3, 2, 0, 1))
sketch9.addConstraint(Sketcher.Constraint("Coincident", 4, 2, 5, 1))
sketch9.addConstraint(Sketcher.Constraint("Coincident", 5, 2, 6, 1))
sketch9.addConstraint(Sketcher.Constraint("Coincident", 6, 2, 7, 1))
sketch9.addConstraint(Sketcher.Constraint("Coincident", 7, 2, 4, 1))
sketch9.addConstraint(Sketcher.Constraint("Vertical", 0))
sketch9.addConstraint(Sketcher.Constraint("Horizontal", 1))
sketch9.addConstraint(Sketcher.Constraint("Vertical", 2))
sketch9.addConstraint(Sketcher.Constraint("Horizontal", 3))
sketch9.addConstraint(Sketcher.Constraint("Vertical", 4))
sketch9.addConstraint(Sketcher.Constraint("Horizontal", 5))
sketch9.addConstraint(Sketcher.Constraint("Vertical", 6))
sketch9.addConstraint(Sketcher.Constraint("Horizontal", 7))
sketch9.addConstraint(Sketcher.Constraint("Symmetric", 1, 2, 4, 2, -2))
sketch9.addConstraint(Sketcher.Constraint("Symmetric", 3, 2, 6, 2, -2))
sketch9.addConstraint(Sketcher.Constraint("DistanceX", 1, 2, 1, 1, 1.0))
sketch9.addConstraint(Sketcher.Constraint("DistanceY", 0, 2, 0, 1, 5.6))
sketch9.addConstraint(Sketcher.Constraint("DistanceY", -1, 1, 2, 2, 17.0))
sketch9.addConstraint(Sketcher.Constraint("DistanceX", 0, 2, 4, 2, 9.5))
pad6 = doc.addObject("PartDesign::Pad", "Pad005")
body.addObject(pad6)
pad6.Profile = sketch9
pad6.Length = 3
pad6.Reversed = True

# Sketch on XZ plane
sketch10 = doc.addObject("Sketcher::SketchObject", "Sketch009")
body.addObject(sketch10)
sketch10.AttachmentSupport = (doc.XZ_Plane, [""])
sketch10.MapMode = "FlatFace"
sketch10.AttachmentOffset = App.Placement(App.Vector(0, 0, 0.5), App.Rotation())
sketch10.addGeometry(Part.LineSegment(App.Vector(-18, 22.2, 0), App.Vector(-18, -22.2, 0)), False)
sketch10.addGeometry(Part.LineSegment(App.Vector(-18, -22.2, 0), App.Vector(-21, -22.2, 0)), False)
sketch10.addGeometry(Part.LineSegment(App.Vector(-21, -22.2, 0), App.Vector(-21, -27.2, 0)), False)
sketch10.addGeometry(Part.LineSegment(App.Vector(-21, -27.2, 0), App.Vector(21, -27.2, 0)), False)
sketch10.addGeometry(Part.LineSegment(App.Vector(21, -27.2, 0), App.Vector(21, -22.2, 0)), False)
sketch10.addGeometry(Part.LineSegment(App.Vector(21, -22.2, 0), App.Vector(18, -22.2, 0)), False)
sketch10.addGeometry(Part.LineSegment(App.Vector(18, -22.2, 0), App.Vector(18, 22.2, 0)), False)
sketch10.addGeometry(Part.LineSegment(App.Vector(18, 22.2, 0), App.Vector(21, 22.2, 0)), False)
sketch10.addGeometry(Part.LineSegment(App.Vector(21, 22.2, 0), App.Vector(21, 27.2, 0)), False)
sketch10.addGeometry(Part.LineSegment(App.Vector(21, 27.2, 0), App.Vector(-21, 27.2, 0)), False)
sketch10.addGeometry(Part.LineSegment(App.Vector(-21, 27.2, 0), App.Vector(-21, 22.2, 0)), False)
sketch10.addGeometry(Part.LineSegment(App.Vector(-21, 22.2, 0), App.Vector(-18, 22.2, 0)), False)
sketch10.addGeometry(Part.Circle(App.Vector(-19.4, -24.6, 0), App.Vector(0, 0, 1), 0.6), False)
sketch10.addGeometry(Part.Circle(App.Vector(19.4, -24.6, 0), App.Vector(0, 0, 1), 0.6), False)
sketch10.addGeometry(Part.Circle(App.Vector(-19.4, 24.6, 0), App.Vector(0, 0, 1), 0.6), False)
sketch10.addGeometry(Part.Circle(App.Vector(19.4, 24.6, 0), App.Vector(0, 0, 1), 0.6), False)
sketch10.addConstraint(Sketcher.Constraint("Coincident", 0, 2, 1, 1))
sketch10.addConstraint(Sketcher.Constraint("Coincident", 1, 2, 2, 1))
sketch10.addConstraint(Sketcher.Constraint("Coincident", 2, 2, 3, 1))
sketch10.addConstraint(Sketcher.Constraint("Coincident", 3, 2, 4, 1))
sketch10.addConstraint(Sketcher.Constraint("Coincident", 4, 2, 5, 1))
sketch10.addConstraint(Sketcher.Constraint("Coincident", 5, 2, 6, 1))
sketch10.addConstraint(Sketcher.Constraint("Coincident", 6, 2, 7, 1))
sketch10.addConstraint(Sketcher.Constraint("Coincident", 7, 2, 8, 1))
sketch10.addConstraint(Sketcher.Constraint("Coincident", 8, 2, 9, 1))
sketch10.addConstraint(Sketcher.Constraint("Coincident", 9, 2, 10, 1))
sketch10.addConstraint(Sketcher.Constraint("Coincident", 10, 2, 11, 1))
sketch10.addConstraint(Sketcher.Constraint("Coincident", 11, 2, 0, 1))
sketch10.addConstraint(Sketcher.Constraint("Vertical", 0))
sketch10.addConstraint(Sketcher.Constraint("Horizontal", 1))
sketch10.addConstraint(Sketcher.Constraint("Vertical", 2))
sketch10.addConstraint(Sketcher.Constraint("Horizontal", 3))
sketch10.addConstraint(Sketcher.Constraint("Vertical", 4))
sketch10.addConstraint(Sketcher.Constraint("Horizontal", 5))
sketch10.addConstraint(Sketcher.Constraint("Vertical", 6))
sketch10.addConstraint(Sketcher.Constraint("Horizontal", 7))
sketch10.addConstraint(Sketcher.Constraint("Vertical", 8))
sketch10.addConstraint(Sketcher.Constraint("Horizontal", 9))
sketch10.addConstraint(Sketcher.Constraint("Vertical", 10))
sketch10.addConstraint(Sketcher.Constraint("Horizontal", 11))
sketch10.addConstraint(Sketcher.Constraint("Equal", 12, 13))
sketch10.addConstraint(Sketcher.Constraint("Equal", 13, 14))
sketch10.addConstraint(Sketcher.Constraint("Equal", 14, 15))
sketch10.addConstraint(Sketcher.Constraint("Symmetric", 13, 3, 14, 3, -1, 1))
sketch10.addConstraint(Sketcher.Constraint("Symmetric", 12, 3, 15, 3, -1, 1))
sketch10.addConstraint(Sketcher.Constraint("Symmetric", 0, 2, 6, 2, -1, 1))
sketch10.addConstraint(Sketcher.Constraint("Symmetric", 2, 2, 8, 2, -1, 1))
sketch10.addConstraint(Sketcher.Constraint("Symmetric", 4, 2, 10, 2, -1, 1))
sketch10.addConstraint(Sketcher.Constraint("Symmetric", 12, 3, 13, 3, -2))
sketch10.addConstraint(Sketcher.Constraint("Symmetric", 1, 2, 4, 2, -2))
sketch10.addConstraint(Sketcher.Constraint("Diameter", 12, 1.1))
sketch10.addConstraint(Sketcher.Constraint("DistanceX", 1, 2, 1, 1, 3.0))
sketch10.addConstraint(Sketcher.Constraint("DistanceX", 3, 1, 3, 2, 42.0))
sketch10.addConstraint(Sketcher.Constraint("DistanceY", 2, 2, 2, 1, 5.0))
sketch10.addConstraint(Sketcher.Constraint("DistanceY", 0, 2, 0, 1, 44.4))
sketch10.addConstraint(Sketcher.Constraint("DistanceX", 12, 3, -1, 1, 19.4))
sketch10.addConstraint(Sketcher.Constraint("DistanceY", 12, 3, 14, 3, 49.1))
pad7 = doc.addObject("PartDesign::Pad", "Pad006")
body.addObject(pad7)
pad7.Profile = sketch10
pad7.Length = 0.5
pad7.Reversed = True

# Sketch on YZ plane
sketch11 = doc.addObject("Sketcher::SketchObject", "Sketch010")
body.addObject(sketch11)
sketch11.AttachmentSupport = (doc.YZ_Plane, [""])
sketch11.MapMode = "FlatFace"
sketch11.AttachmentOffset = App.Placement(App.Vector(0, 0, 18), App.Rotation())
sketch11.addGeometry(Part.LineSegment(App.Vector(15.5, -21.7, 0), App.Vector(9.5, -21.7, 0)), False)
sketch11.addGeometry(Part.LineSegment(App.Vector(9.5, -21.7, 0), App.Vector(9.5, -22.7, 0)), False)
sketch11.addGeometry(Part.LineSegment(App.Vector(9.5, -22.7, 0), App.Vector(15.5, -22.7, 0)), False)
sketch11.addGeometry(Part.LineSegment(App.Vector(15.5, -22.7, 0), App.Vector(15.5, -21.7, 0)), False)
sketch11.addGeometry(Part.LineSegment(App.Vector(15.5, -16.2, 0), App.Vector(9.5, -16.2, 0)), False)
sketch11.addGeometry(Part.LineSegment(App.Vector(9.5, -16.2, 0), App.Vector(9.5, -17.2, 0)), False)
sketch11.addGeometry(Part.LineSegment(App.Vector(9.5, -17.2, 0), App.Vector(15.5, -17.2, 0)), False)
sketch11.addGeometry(Part.LineSegment(App.Vector(15.5, -17.2, 0), App.Vector(15.5, -16.2, 0)), False)
sketch11.addConstraint(Sketcher.Constraint("Coincident", 0, 2, 1, 1))
sketch11.addConstraint(Sketcher.Constraint("Coincident", 1, 2, 2, 1))
sketch11.addConstraint(Sketcher.Constraint("Coincident", 2, 2, 3, 1))
sketch11.addConstraint(Sketcher.Constraint("Coincident", 3, 2, 0, 1))
sketch11.addConstraint(Sketcher.Constraint("Coincident", 4, 2, 5, 1))
sketch11.addConstraint(Sketcher.Constraint("Coincident", 5, 2, 6, 1))
sketch11.addConstraint(Sketcher.Constraint("Coincident", 6, 2, 7, 1))
sketch11.addConstraint(Sketcher.Constraint("Coincident", 7, 2, 4, 1))
sketch11.addConstraint(Sketcher.Constraint("Horizontal", 0))
sketch11.addConstraint(Sketcher.Constraint("Vertical", 1))
sketch11.addConstraint(Sketcher.Constraint("Horizontal", 2))
sketch11.addConstraint(Sketcher.Constraint("Vertical", 3))
sketch11.addConstraint(Sketcher.Constraint("Horizontal", 4))
sketch11.addConstraint(Sketcher.Constraint("Vertical", 5))
sketch11.addConstraint(Sketcher.Constraint("Horizontal", 6))
sketch11.addConstraint(Sketcher.Constraint("Vertical", 7))
sketch11.addConstraint(Sketcher.Constraint("Vertical", 1, 2, 4, 2))
sketch11.addConstraint(Sketcher.Constraint("Vertical", 3, 2, 6, 2))
sketch11.addConstraint(Sketcher.Constraint("Equal", 3, 5))
sketch11.addConstraint(Sketcher.Constraint("DistanceX", 0, 2, 0, 1, 6.0))
sketch11.addConstraint(Sketcher.Constraint("DistanceY", 1, 2, 1, 1, 1.0))
sketch11.addConstraint(Sketcher.Constraint("DistanceX", -1, 1, 0, 2, 9.5))
sketch11.addConstraint(Sketcher.Constraint("DistanceY", 0, 2, -1, 1, 21.7))
sketch11.addConstraint(Sketcher.Constraint("DistanceY", 4, 2, -1, 1, 16.2))
pocket4 = doc.addObject("PartDesign::Pocket", "Pocket003")
body.addObject(pocket4)
pocket4.Profile = sketch11
pocket4.Length = 40

doc.recompute()
